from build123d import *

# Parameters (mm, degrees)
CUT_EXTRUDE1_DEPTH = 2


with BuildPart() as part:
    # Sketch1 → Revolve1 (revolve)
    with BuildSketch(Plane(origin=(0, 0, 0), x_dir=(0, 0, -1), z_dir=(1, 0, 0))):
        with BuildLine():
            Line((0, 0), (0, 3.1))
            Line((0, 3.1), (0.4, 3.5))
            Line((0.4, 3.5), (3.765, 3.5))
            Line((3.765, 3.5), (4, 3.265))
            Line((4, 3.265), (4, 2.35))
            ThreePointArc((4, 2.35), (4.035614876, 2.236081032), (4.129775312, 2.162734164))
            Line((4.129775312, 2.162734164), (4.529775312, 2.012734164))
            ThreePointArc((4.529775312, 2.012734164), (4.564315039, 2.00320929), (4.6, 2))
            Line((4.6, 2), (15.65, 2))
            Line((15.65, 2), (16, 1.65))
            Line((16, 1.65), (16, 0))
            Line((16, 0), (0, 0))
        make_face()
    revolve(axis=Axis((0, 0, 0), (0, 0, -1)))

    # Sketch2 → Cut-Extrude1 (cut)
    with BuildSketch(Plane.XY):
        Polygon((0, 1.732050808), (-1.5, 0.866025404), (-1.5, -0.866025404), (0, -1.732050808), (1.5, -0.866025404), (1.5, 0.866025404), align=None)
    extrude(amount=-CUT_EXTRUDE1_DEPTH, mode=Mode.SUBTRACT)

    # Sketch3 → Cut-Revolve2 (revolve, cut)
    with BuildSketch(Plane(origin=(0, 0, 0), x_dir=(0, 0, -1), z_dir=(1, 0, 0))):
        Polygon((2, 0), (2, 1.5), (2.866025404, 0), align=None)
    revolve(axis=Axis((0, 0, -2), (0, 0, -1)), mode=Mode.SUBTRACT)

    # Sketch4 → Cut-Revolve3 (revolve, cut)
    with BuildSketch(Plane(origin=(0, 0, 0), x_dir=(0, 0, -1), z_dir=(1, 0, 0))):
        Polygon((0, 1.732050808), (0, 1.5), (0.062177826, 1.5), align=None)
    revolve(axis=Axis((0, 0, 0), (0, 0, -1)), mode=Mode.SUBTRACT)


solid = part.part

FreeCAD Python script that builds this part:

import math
import FreeCAD as App
import Part
import Sketcher
from FreeCAD import Vector
Q = App.Units.Quantity

doc = App.newDocument("Part")
body = doc.addObject("PartDesign::Body", "Body")

# Sketch on YZ plane
sketch1 = doc.addObject("Sketcher::SketchObject", "Sketch")
body.addObject(sketch1)
sketch1.AttachmentSupport = (doc.YZ_Plane, [""])
sketch1.MapMode = "FlatFace"
sketch1.addGeometry(Part.LineSegment(Vector(3.1, 0, 0), Vector(0, 0, 0)), False)
sketch1.addGeometry(Part.LineSegment(Vector(0, 0, 0), Vector(0, -16, 0)), False)
sketch1.addGeometry(Part.LineSegment(Vector(0, -16, 0), Vector(1.65, -16, 0)), False)
sketch1.addGeometry(Part.LineSegment(Vector(1.65, -16, 0), Vector(2, -15.65, 0)), False)
sketch1.addGeometry(Part.LineSegment(Vector(2, -15.65, 0), Vector(2, -4.6, 0)), False)
sketch1.addGeometry(Part.ArcOfCircle(Part.Circle(Vector(2.2, -4.6, 0), Vector(0, 0, 1), 0.2), math.radians(159), math.radians(180)), False)
sketch1.addGeometry(Part.LineSegment(Vector(2.01, -4.53, 0), Vector(2.16, -4.13, 0)), False)
sketch1.addGeometry(Part.ArcOfCircle(Part.Circle(Vector(2.35, -4.2, 0), Vector(0, 0, 1), 0.2), math.radians(90), math.radians(159)), False)
sketch1.addGeometry(Part.LineSegment(Vector(2.35, -4, 0), Vector(3.27, -4, 0)), False)
sketch1.addGeometry(Part.LineSegment(Vector(3.27, -4, 0), Vector(3.5, -3.77, 0)), False)
sketch1.addGeometry(Part.LineSegment(Vector(3.5, -3.77, 0), Vector(3.5, -0.4, 0)), False)
sketch1.addGeometry(Part.LineSegment(Vector(3.5, -0.4, 0), Vector(3.1, 0, 0)), False)
sketch1.addConstraint(Sketcher.Constraint("Coincident", 0, 2, 1, 1))
sketch1.addConstraint(Sketcher.Constraint("Coincident", 1, 2, 2, 1))
sketch1.addConstraint(Sketcher.Constraint("Coincident", 2, 2, 3, 1))
sketch1.addConstraint(Sketcher.Constraint("Coincident", 3, 2, 4, 1))
sketch1.addConstraint(Sketcher.Constraint("Tangent", 4, 2, 5, 2))
sketch1.addConstraint(Sketcher.Constraint("Tangent", 5, 1, 6, 1))
sketch1.addConstraint(Sketcher.Constraint("Tangent", 6, 2, 7, 2))
sketch1.addConstraint(Sketcher.Constraint("Tangent", 7, 1, 8, 1))
sketch1.addConstraint(Sketcher.Constraint("Coincident", 8, 2, 9, 1))
sketch1.addConstraint(Sketcher.Constraint("Coincident", 9, 2, 10, 1))
sketch1.addConstraint(Sketcher.Constraint("Coincident", 10, 2, 11, 1))
sketch1.addConstraint(Sketcher.Constraint("Coincident", 11, 2, 0, 1))
sketch1.addConstraint(Sketcher.Constraint("Horizontal", 0))
sketch1.addConstraint(Sketcher.Constraint("Vertical", 1))
sketch1.addConstraint(Sketcher.Constraint("Horizontal", 2))
sketch1.addConstraint(Sketcher.Constraint("Vertical", 4))
sketch1.addConstraint(Sketcher.Constraint("Horizontal", 8))
sketch1.addConstraint(Sketcher.Constraint("Vertical", 10))
sketch1.addConstraint(Sketcher.Constraint("Coincident", 0, 2, -1, 1))
sketch1.addConstraint(Sketcher.Constraint("Equal", 5, 7))
sketch1.addConstraint(Sketcher.Constraint("Parallel", 3, 9))
sketch1.addConstraint(Sketcher.Constraint("Perpendicular", 9, 11))
sketch1.addConstraint(Sketcher.Constraint("Radius", 5, Q("0.2 mm")))
sketch1.addConstraint(Sketcher.Constraint("DistanceY", 1, 2, 1, 1, Q("16 mm")))
sketch1.addConstraint(Sketcher.Constraint("Angle", 3, Q("45 deg")))
sketch1.addConstraint(Sketcher.Constraint("DistanceX", 0, 2, 0, 1, Q("3.1 mm")))
sketch1.addConstraint(Sketcher.Constraint("DistanceX", -1, 1, 3, 2, Q("2 mm")))
sketch1.addConstraint(Sketcher.Constraint("DistanceY", 7, 1, -1, 1, Q("4 mm")))
sketch1.addConstraint(Sketcher.Constraint("DistanceX", 2, 1, 2, 2, Q("1.65 mm")))
sketch1.addConstraint(Sketcher.Constraint("DistanceY", 4, 1, 4, 2, Q("11.05 mm")))
sketch1.addConstraint(Sketcher.Constraint("DistanceX", -1, 1, 9, 2, Q("3.5 mm")))
sketch1.addConstraint(Sketcher.Constraint("DistanceX", 2, 2, 7, 3, Q("0.7 mm")))
sketch1.addConstraint(Sketcher.Constraint("DistanceX", 8, 1, 8, 2, Q("0.915 mm")))
revolution = doc.addObject("PartDesign::Revolution", "Revolution")
body.addObject(revolution)
revolution.Profile = sketch1
revolution.ReferenceAxis = (sketch1, ["V_Axis"])
revolution.Angle = 360

# Sketch on XY plane
sketch2 = doc.addObject("Sketcher::SketchObject", "Sketch001")
body.addObject(sketch2)
sketch2.AttachmentSupport = (doc.XY_Plane, [""])
sketch2.MapMode = "FlatFace"
sketch2.addGeometry(Part.LineSegment(Vector(0, 1.7, 0), Vector(-1.5, 0.9, 0)), False)
sketch2.addGeometry(Part.LineSegment(Vector(-1.5, 0.9, 0), Vector(-1.5, -0.9, 0)), False)
sketch2.addGeometry(Part.LineSegment(Vector(-1.5, -0.9, 0), Vector(0, -1.7, 0)), False)
sketch2.addGeometry(Part.LineSegment(Vector(0, -1.7, 0), Vector(1.5, -0.9, 0)), False)
sketch2.addGeometry(Part.LineSegment(Vector(1.5, -0.9, 0), Vector(1.5, 0.9, 0)), False)
sketch2.addGeometry(Part.LineSegment(Vector(1.5, 0.9, 0), Vector(0, 1.7, 0)), False)
sketch2.addConstraint(Sketcher.Constraint("Coincident", 0, 2, 1, 1))
sketch2.addConstraint(Sketcher.Constraint("Coincident", 1, 2, 2, 1))
sketch2.addConstraint(Sketcher.Constraint("Coincident", 2, 2, 3, 1))
sketch2.addConstraint(Sketcher.Constraint("Coincident", 3, 2, 4, 1))
sketch2.addConstraint(Sketcher.Constraint("Coincident", 4, 2, 5, 1))
sketch2.addConstraint(Sketcher.Constraint("Coincident", 5, 2, 0, 1))
sketch2.addConstraint(Sketcher.Constraint("Vertical", 1))
sketch2.addConstraint(Sketcher.Constraint("Vertical", 4))
sketch2.addConstraint(Sketcher.Constraint("Symmetric", 0, 2, 3, 2, -1, 1))
sketch2.addConstraint(Sketcher.Constraint("Symmetric", 2, 2, 5, 2, -1, 1))
sketch2.addConstraint(Sketcher.Constraint("PointOnObject", 2, 2, -2))
sketch2.addConstraint(Sketcher.Constraint("Parallel", 2, 5))
sketch2.addConstraint(Sketcher.Constraint("Horizontal", 1, 2, 3, 2))
sketch2.addConstraint(Sketcher.Constraint("Angle", 0, Q("-150 deg")))
sketch2.addConstraint(Sketcher.Constraint("DistanceX", 1, 2, 3, 2, Q("3 mm")))
sketch2.addConstraint(Sketcher.Constraint("DistanceY", 1, 2, 1, 1, Q("1.732051 mm")))
pocket1 = doc.addObject("PartDesign::Pocket", "Pocket")
body.addObject(pocket1)
pocket1.Profile = sketch2
pocket1.Length = 2

# Sketch on YZ plane
sketch3 = doc.addObject("Sketcher::SketchObject", "Sketch002")
body.addObject(sketch3)
sketch3.AttachmentSupport = (doc.YZ_Plane, [""])
sketch3.MapMode = "FlatFace"
sketch3.addGeometry(Part.LineSegment(Vector(1.5, -2, 0), Vector(0, -2, 0)), False)
sketch3.addGeometry(Part.LineSegment(Vector(0, -2, 0), Vector(0, -2.9, 0)), False)
sketch3.addGeometry(Part.LineSegment(Vector(0, -2.9, 0), Vector(1.5, -2, 0)), False)
sketch3.addConstraint(Sketcher.Constraint("Coincident", 0, 2, 1, 1))
sketch3.addConstraint(Sketcher.Constraint("Coincident", 1, 2, 2, 1))
sketch3.addConstraint(Sketcher.Constraint("Coincident", 2, 2, 0, 1))
sketch3.addConstraint(Sketcher.Constraint("Horizontal", 0))
sketch3.addConstraint(Sketcher.Constraint("Vertical", 1))
sketch3.addConstraint(Sketcher.Constraint("PointOnObject", 0, 2, -2))
sketch3.addConstraint(Sketcher.Constraint("Angle", 2, Q("30 deg")))
sketch3.addConstraint(Sketcher.Constraint("DistanceX", 0, 2, 0, 1, Q("1.5 mm")))
sketch3.addConstraint(Sketcher.Constraint("DistanceY", 0, 2, -1, 1, Q("2 mm")))
groove = doc.addObject("PartDesign::Groove", "Groove")
body.addObject(groove)
groove.Profile = sketch3
groove.ReferenceAxis = (sketch3, ["V_Axis"])
groove.Angle = 360

# Sketch on YZ plane
sketch4 = doc.addObject("Sketcher::SketchObject", "Sketch003")
body.addObject(sketch4)
sketch4.AttachmentSupport = (doc.YZ_Plane, [""])
sketch4.MapMode = "FlatFace"
sketch4.addGeometry(Part.LineSegment(Vector(1.73, 0, 0), Vector(1.5, 0, 0)), False)
sketch4.addGeometry(Part.LineSegment(Vector(1.5, 0, 0), Vector(1.5, -0.06, 0)), False)
sketch4.addGeometry(Part.LineSegment(Vector(1.5, -0.06, 0), Vector(1.73, 0, 0)), False)
sketch4.addConstraint(Sketcher.Constraint("Coincident", 0, 2, 1, 1))
sketch4.addConstraint(Sketcher.Constraint("Coincident", 1, 2, 2, 1))
sketch4.addConstraint(Sketcher.Constraint("Coincident", 2, 2, 0, 1))
sketch4.addConstraint(Sketcher.Constraint("Horizontal", 0))
sketch4.addConstraint(Sketcher.Constraint("Vertical", 1))
sketch4.addConstraint(Sketcher.Constraint("PointOnObject", 0, 2, -1))
sketch4.addConstraint(Sketcher.Constraint("Angle", 2, Q("15 deg")))
sketch4.addConstraint(Sketcher.Constraint("DistanceX", -1, 1, 0, 2, Q("1.5 mm")))
sketch4.addConstraint(Sketcher.Constraint("DistanceX", 0, 2, 0, 1, Q("0.232051 mm")))
groove2 = doc.addObject("PartDesign::Groove", "Groove001")
body.addObject(groove2)
groove2.Profile = sketch4
groove2.ReferenceAxis = (sketch4, ["V_Axis"])
groove2.Angle = 360

doc.recompute()
